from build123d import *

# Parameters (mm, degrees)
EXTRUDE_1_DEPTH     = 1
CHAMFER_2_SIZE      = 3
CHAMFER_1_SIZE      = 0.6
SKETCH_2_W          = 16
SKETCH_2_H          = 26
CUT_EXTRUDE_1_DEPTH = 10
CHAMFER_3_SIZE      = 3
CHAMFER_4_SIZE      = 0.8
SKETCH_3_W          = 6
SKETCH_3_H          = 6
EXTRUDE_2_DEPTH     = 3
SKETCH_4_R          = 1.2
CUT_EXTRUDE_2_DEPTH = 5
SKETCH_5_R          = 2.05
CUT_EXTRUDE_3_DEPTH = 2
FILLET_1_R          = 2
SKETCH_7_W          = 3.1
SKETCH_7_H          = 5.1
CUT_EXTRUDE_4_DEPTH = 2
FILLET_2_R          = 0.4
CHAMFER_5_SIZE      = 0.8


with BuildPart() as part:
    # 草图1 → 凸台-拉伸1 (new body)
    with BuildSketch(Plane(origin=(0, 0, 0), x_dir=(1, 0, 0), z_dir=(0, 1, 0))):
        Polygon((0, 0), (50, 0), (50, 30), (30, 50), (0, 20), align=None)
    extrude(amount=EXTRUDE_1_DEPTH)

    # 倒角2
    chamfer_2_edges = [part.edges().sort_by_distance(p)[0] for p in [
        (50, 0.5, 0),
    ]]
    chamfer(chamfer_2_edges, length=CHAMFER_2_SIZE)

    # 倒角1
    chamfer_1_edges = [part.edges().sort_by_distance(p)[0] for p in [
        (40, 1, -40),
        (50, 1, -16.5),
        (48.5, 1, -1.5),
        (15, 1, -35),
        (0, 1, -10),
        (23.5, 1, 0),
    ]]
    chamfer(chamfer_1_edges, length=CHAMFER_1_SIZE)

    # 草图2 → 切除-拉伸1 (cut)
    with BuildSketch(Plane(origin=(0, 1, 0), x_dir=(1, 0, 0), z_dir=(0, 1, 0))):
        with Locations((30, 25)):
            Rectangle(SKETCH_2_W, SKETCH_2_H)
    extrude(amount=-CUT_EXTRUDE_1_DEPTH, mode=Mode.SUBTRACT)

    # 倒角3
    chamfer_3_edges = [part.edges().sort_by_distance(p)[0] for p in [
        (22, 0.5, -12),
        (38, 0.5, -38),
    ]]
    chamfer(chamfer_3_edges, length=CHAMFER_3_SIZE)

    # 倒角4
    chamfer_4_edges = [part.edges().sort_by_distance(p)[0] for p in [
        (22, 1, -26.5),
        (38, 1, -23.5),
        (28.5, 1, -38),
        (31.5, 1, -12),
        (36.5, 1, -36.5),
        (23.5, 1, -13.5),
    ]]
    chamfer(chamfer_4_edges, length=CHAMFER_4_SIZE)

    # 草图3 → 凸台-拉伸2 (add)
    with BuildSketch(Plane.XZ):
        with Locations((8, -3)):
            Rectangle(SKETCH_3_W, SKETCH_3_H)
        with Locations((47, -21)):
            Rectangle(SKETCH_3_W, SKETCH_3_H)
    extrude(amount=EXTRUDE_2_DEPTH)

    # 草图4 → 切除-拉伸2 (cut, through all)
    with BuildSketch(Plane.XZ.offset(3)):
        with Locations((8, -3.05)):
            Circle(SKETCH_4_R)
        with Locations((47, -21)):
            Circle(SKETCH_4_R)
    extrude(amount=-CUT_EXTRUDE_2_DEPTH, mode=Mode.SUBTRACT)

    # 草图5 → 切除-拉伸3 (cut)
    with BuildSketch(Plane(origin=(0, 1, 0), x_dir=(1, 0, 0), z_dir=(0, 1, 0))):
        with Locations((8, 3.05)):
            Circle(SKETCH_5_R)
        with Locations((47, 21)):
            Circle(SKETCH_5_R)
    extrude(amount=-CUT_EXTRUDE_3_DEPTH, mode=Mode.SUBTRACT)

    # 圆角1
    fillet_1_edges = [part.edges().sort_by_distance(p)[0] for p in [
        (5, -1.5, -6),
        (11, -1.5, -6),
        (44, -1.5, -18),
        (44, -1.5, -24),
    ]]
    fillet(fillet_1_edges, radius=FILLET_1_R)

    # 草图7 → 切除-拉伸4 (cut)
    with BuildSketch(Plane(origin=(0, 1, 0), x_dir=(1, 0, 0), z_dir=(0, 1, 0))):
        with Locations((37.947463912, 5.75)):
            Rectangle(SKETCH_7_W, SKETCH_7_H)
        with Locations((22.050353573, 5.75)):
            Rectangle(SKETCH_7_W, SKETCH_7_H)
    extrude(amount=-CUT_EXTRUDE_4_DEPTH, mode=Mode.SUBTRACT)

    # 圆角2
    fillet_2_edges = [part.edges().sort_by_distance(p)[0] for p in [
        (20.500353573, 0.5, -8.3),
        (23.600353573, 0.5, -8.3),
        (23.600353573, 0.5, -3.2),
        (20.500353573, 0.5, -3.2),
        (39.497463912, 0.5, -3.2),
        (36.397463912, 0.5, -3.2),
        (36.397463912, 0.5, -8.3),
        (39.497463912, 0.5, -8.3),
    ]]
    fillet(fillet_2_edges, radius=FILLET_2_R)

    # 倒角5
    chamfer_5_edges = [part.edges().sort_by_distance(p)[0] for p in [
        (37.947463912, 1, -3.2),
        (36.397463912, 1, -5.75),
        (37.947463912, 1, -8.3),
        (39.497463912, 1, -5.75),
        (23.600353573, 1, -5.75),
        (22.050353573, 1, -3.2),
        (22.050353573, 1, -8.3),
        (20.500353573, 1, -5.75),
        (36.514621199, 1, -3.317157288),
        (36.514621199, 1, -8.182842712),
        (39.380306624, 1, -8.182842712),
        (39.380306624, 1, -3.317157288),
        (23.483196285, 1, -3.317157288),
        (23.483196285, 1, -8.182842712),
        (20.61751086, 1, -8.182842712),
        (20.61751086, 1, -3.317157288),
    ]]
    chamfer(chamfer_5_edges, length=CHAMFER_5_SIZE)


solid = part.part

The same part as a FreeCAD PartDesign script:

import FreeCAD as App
import Part
import Sketcher

V = App.Vector
Q = App.Units.Quantity


def edges_at(feature, points):
    """Names of the edges that pass closest to the given points."""
    edges = feature.Shape.Edges
    near = lambda p: min(range(len(edges)), key=lambda i: edges[i].distToShape(Part.Vertex(*p))[0])
    return sorted({f"Edge{near(p) + 1}" for p in points})

doc = App.newDocument("Part")
params = doc.addObject("Spreadsheet::Sheet", "Params")
for row, (alias, value) in enumerate([
    ("sketch1_width", "50 mm"),
    ("sketch1_height", "30 mm"),
    ("sketch1_height2", "20 mm"),
    ("pad1_length", "1 mm"),
    ("chamfer_size", "3 mm"),
    ("chamfer2_size", "0.6 mm"),
    ("sketch2_width", "16 mm"),
    ("sketch2_height", "26 mm"),
    ("pocket1_length", "10 mm"),
    ("chamfer3_size", "3 mm"),
    ("chamfer4_size", "0.8 mm"),
    ("sketch3_width", "6 mm"),
    ("pad2_length", "3 mm"),
    ("sketch4_diameter", "2.4 mm"),
    ("sketch5_diameter", "4.1 mm"),
    ("pocket3_length", "2 mm"),
    ("fillet_radius", "2 mm"),
    ("sketch6_width", "3.1 mm"),
    ("sketch6_height", "5.1 mm"),
    ("pocket4_length", "2 mm"),
    ("fillet2_radius", "0.4 mm"),
    ("chamfer5_size", "0.8 mm"),
], start=1):
    params.set(f"A{row}", alias)
    params.set(f"B{row}", "=" + value)
    params.setAlias(f"B{row}", alias)

body = doc.addObject("PartDesign::Body", "Body")

# Sketch on XZ plane
sketch1 = doc.addObject("Sketcher::SketchObject", "Sketch")
body.addObject(sketch1)
sketch1.AttachmentSupport = (doc.XZ_Plane, [""])
sketch1.MapMode = "FlatFace"
sketch1.addGeometry([
    Part.LineSegment(V(0, 0, 0), V(50, 0, 0)),  # 0
    Part.LineSegment(V(50, 0, 0), V(50, -30, 0)),  # 1
    Part.LineSegment(V(50, -30, 0), V(30, -50, 0)),  # 2
    Part.LineSegment(V(30, -50, 0), V(0, -20, 0)),  # 3
    Part.LineSegment(V(0, -20, 0), V(0, 0, 0)),  # 4
], False)
sketch1.addConstraint([
    Sketcher.Constraint("Coincident", 0, 2, 1, 1),
    Sketcher.Constraint("Coincident", 1, 2, 2, 1),
    Sketcher.Constraint("Coincident", 2, 2, 3, 1),
    Sketcher.Constraint("Coincident", 3, 2, 4, 1),
    Sketcher.Constraint("Coincident", 4, 2, 0, 1),
    Sketcher.Constraint("Horizontal", 0),
    Sketcher.Constraint("Vertical", 1),
    Sketcher.Constraint("Vertical", 4),
    Sketcher.Constraint("Coincident", 4, 2, -1, 1),
    Sketcher.Constraint("Perpendicular", 2, 3),
    Sketcher.Constraint("DistanceX", 0, 1, 0, 2, Q("50 mm")),
    Sketcher.Constraint("DistanceY", 1, 2, 1, 1, Q("30 mm")),
    Sketcher.Constraint("DistanceY", 4, 1, 4, 2, Q("20 mm")),
    Sketcher.Constraint("Angle", 2, Q("-135 deg")),
])
sketch1.setExpression("Constraints[10]", "Params.sketch1_width")
sketch1.setExpression("Constraints[11]", "Params.sketch1_height")
sketch1.setExpression("Constraints[12]", "Params.sketch1_height2")
pad1 = doc.addObject("PartDesign::Pad", "Pad")
body.addObject(pad1)
pad1.Profile = sketch1
pad1.setExpression("Length", "Params.pad1_length")
pad1.Reversed = True
doc.recompute()

chamfer = doc.addObject("PartDesign::Chamfer", "Chamfer")
body.addObject(chamfer)
chamfer.Base = (pad1, edges_at(pad1, [(50, 0.5, 0)]))
chamfer.setExpression("Size", "Params.chamfer_size")
doc.recompute()

chamfer2 = doc.addObject("PartDesign::Chamfer", "Chamfer001")
body.addObject(chamfer2)
chamfer2.Base = (chamfer, edges_at(chamfer, [
    (40, 1, -40),
    (50, 1, -16.5),
    (48.5, 1, -1.5),
    (15, 1, -35),
    (0, 1, -10),
    (23.5, 1, 0),
]))
chamfer2.setExpression("Size", "Params.chamfer2_size")

# Sketch on XZ plane
sketch2 = doc.addObject("Sketcher::SketchObject", "Sketch001")
body.addObject(sketch2)
sketch2.AttachmentSupport = (doc.XZ_Plane, [""])
sketch2.MapMode = "FlatFace"
sketch2.AttachmentOffset = App.Placement(V(0, 0, -1), App.Rotation())
sketch2.addGeometry([
    Part.LineSegment(V(22, -38, 0), V(22, -12, 0)),
    Part.LineSegment(V(22, -12, 0), V(38, -12, 0)),
    Part.LineSegment(V(38, -12, 0), V(38, -38, 0)),
    Part.LineSegment(V(38, -38, 0), V(22, -38, 0)),
], False)
sketch2.addConstraint([
    Sketcher.Constraint("Coincident", 0, 2, 1, 1),
    Sketcher.Constraint("Coincident", 1, 2, 2, 1),
    Sketcher.Constraint("Coincident", 2, 2, 3, 1),
    Sketcher.Constraint("Coincident", 3, 2, 0, 1),
    Sketcher.Constraint("Vertical", 0),
    Sketcher.Constraint("Horizontal", 1),
    Sketcher.Constraint("Vertical", 2),
    Sketcher.Constraint("Horizontal", 3),
    Sketcher.Constraint("DistanceX", 1, 1, 1, 2, Q("16 mm")),
    Sketcher.Constraint("DistanceY", 0, 1, 0, 2, Q("26 mm")),
    Sketcher.Constraint("DistanceX", -1, 1, 0, 2, Q("22 mm")),
    Sketcher.Constraint("DistanceY", 0, 2, -1, 1, Q("12 mm")),
])
sketch2.setExpression("Constraints[8]", "Params.sketch2_width")
sketch2.setExpression("Constraints[9]", "Params.sketch2_height")
pocket1 = doc.addObject("PartDesign::Pocket", "Pocket")
body.addObject(pocket1)
pocket1.Profile = sketch2
pocket1.setExpression("Length", "Params.pocket1_length")
pocket1.Reversed = True
doc.recompute()

chamfer3 = doc.addObject("PartDesign::Chamfer", "Chamfer002")
body.addObject(chamfer3)
chamfer3.Base = (pocket1, edges_at(pocket1, [(22, 0.5, -12), (38, 0.5, -38)]))
chamfer3.setExpression("Size", "Params.chamfer3_size")
doc.recompute()

chamfer4 = doc.addObject("PartDesign::Chamfer", "Chamfer003")
body.addObject(chamfer4)
chamfer4.Base = (chamfer3, edges_at(chamfer3, [
    (22, 1, -26.5),
    (38, 1, -23.5),
    (28.5, 1, -38),
    (31.5, 1, -12),
    (36.5, 1, -36.5),
    (23.5, 1, -13.5),
]))
chamfer4.setExpression("Size", "Params.chamfer4_size")

# Sketch on XZ plane
sketch3 = doc.addObject("Sketcher::SketchObject", "Sketch002")
body.addObject(sketch3)
sketch3.AttachmentSupport = (doc.XZ_Plane, [""])
sketch3.MapMode = "FlatFace"
sketch3.addGeometry([
    Part.LineSegment(V(5, 0, 0), V(5, -6, 0)),  # 0
    Part.LineSegment(V(5, -6, 0), V(11, -6, 0)),  # 1
    Part.LineSegment(V(11, -6, 0), V(11, 0, 0)),  # 2
    Part.LineSegment(V(11, 0, 0), V(5, 0, 0)),  # 3
    Part.LineSegment(V(44, -18, 0), V(44, -24, 0)),  # 4
    Part.LineSegment(V(44, -24, 0), V(50, -24, 0)),  # 5
    Part.LineSegment(V(50, -24, 0), V(50, -18, 0)),  # 6
    Part.LineSegment(V(50, -18, 0), V(44, -18, 0)),  # 7
], False)
sketch3.addConstraint([
    Sketcher.Constraint("Coincident", 0, 2, 1, 1),
    Sketcher.Constraint("Coincident", 1, 2, 2, 1),
    Sketcher.Constraint("Coincident", 2, 2, 3, 1),
    Sketcher.Constraint("Coincident", 3, 2, 0, 1),
    Sketcher.Constraint("Coincident", 4, 2, 5, 1),
    Sketcher.Constraint("Coincident", 5, 2, 6, 1),
    Sketcher.Constraint("Coincident", 6, 2, 7, 1),
    Sketcher.Constraint("Coincident", 7, 2, 4, 1),
    Sketcher.Constraint("Vertical", 0),
    Sketcher.Constraint("Horizontal", 1),
    Sketcher.Constraint("Vertical", 2),
    Sketcher.Constraint("Horizontal", 3),
    Sketcher.Constraint("Vertical", 4),
    Sketcher.Constraint("Horizontal", 5),
    Sketcher.Constraint("Vertical", 6),
    Sketcher.Constraint("Horizontal", 7),
    Sketcher.Constraint("PointOnObject", 2, 2, -1),
    Sketcher.Constraint("Equal", 3, 5),
    Sketcher.Constraint("Equal", 7, 0),
    Sketcher.Constraint("Equal", 2, 4),
    Sketcher.Constraint("DistanceX", 1, 1, 1, 2, Q("6 mm")),
    Sketcher.Constraint("DistanceX", -1, 1, 0, 2, Q("5 mm")),
    Sketcher.Constraint("DistanceX", -1, 1, 4, 2, Q("44 mm")),
    Sketcher.Constraint("DistanceY", 4, 2, -1, 1, Q("24 mm")),
])
sketch3.setExpression("Constraints[20]", "Params.sketch3_width")
pad2 = doc.addObject("PartDesign::Pad", "Pad001")
body.addObject(pad2)
pad2.Profile = sketch3
pad2.setExpression("Length", "Params.pad2_length")

# Sketch on XZ plane
sketch4 = doc.addObject("Sketcher::SketchObject", "Sketch003")
body.addObject(sketch4)
sketch4.AttachmentSupport = (doc.XZ_Plane, [""])
sketch4.MapMode = "FlatFace"
sketch4.AttachmentOffset = App.Placement(V(0, 0, 3), App.Rotation())
sketch4.addGeometry([
    Part.Circle(V(8, -3.05, 0), V(0, 0, 1), 1.2),
    Part.Circle(V(47, -21, 0), V(0, 0, 1), 1.2),
], False)
sketch4.addConstraint([
    Sketcher.Constraint("Equal", 0, 1),
    Sketcher.Constraint("Diameter", 0, Q("2.4 mm")),
    Sketcher.Constraint("DistanceX", -1, 1, 0, 3, Q("8 mm")),
    Sketcher.Constraint("DistanceX", -1, 1, 1, 3, Q("47 mm")),
    Sketcher.Constraint("DistanceY", 1, 3, -1, 1, Q("21 mm")),
    Sketcher.Constraint("DistanceY", 0, 3, -1, 1, Q("3.05 mm")),
])
sketch4.setExpression("Constraints[1]", "Params.sketch4_diameter")
pocket2 = doc.addObject("PartDesign::Pocket", "Pocket001")
body.addObject(pocket2)
pocket2.Profile = sketch4
pocket2.Type = "ThroughAll"

# Sketch on XZ plane
sketch5 = doc.addObject("Sketcher::SketchObject", "Sketch004")
body.addObject(sketch5)
sketch5.AttachmentSupport = (doc.XZ_Plane, [""])
sketch5.MapMode = "FlatFace"
sketch5.AttachmentOffset = App.Placement(V(0, 0, -1), App.Rotation())
sketch5.addGeometry([
    Part.Circle(V(8, -3.05, 0), V(0, 0, 1), 2.05),
    Part.Circle(V(47, -21, 0), V(0, 0, 1), 2.05),
], False)
sketch5.addConstraint([
    Sketcher.Constraint("Equal", 0, 1),
    Sketcher.Constraint("Diameter", 0, Q("4.1 mm")),
    Sketcher.Constraint("DistanceX", -1, 1, 0, 3, Q("8 mm")),
    Sketcher.Constraint("DistanceX", -1, 1, 1, 3, Q("47 mm")),
    Sketcher.Constraint("DistanceY", 1, 3, -1, 1, Q("21 mm")),
    Sketcher.Constraint("DistanceY", 0, 3, -1, 1, Q("3.05 mm")),
])
sketch5.setExpression("Constraints[1]", "Params.sketch5_diameter")
pocket3 = doc.addObject("PartDesign::Pocket", "Pocket002")
body.addObject(pocket3)
pocket3.Profile = sketch5
pocket3.setExpression("Length", "Params.pocket3_length")
pocket3.Reversed = True
doc.recompute()

fillet = doc.addObject("PartDesign::Fillet", "Fillet")
body.addObject(fillet)
fillet.Base = (pocket3, edges_at(pocket3, [
    (5, -1.5, -6),
    (11, -1.5, -6),
    (44, -1.5, -18),
    (44, -1.5, -24),
]))
fillet.setExpression("Radius", "Params.fillet_radius")

# Sketch on XZ plane
sketch6 = doc.addObject("Sketcher::SketchObject", "Sketch005")
body.addObject(sketch6)
sketch6.AttachmentSupport = (doc.XZ_Plane, [""])
sketch6.MapMode = "FlatFace"
sketch6.AttachmentOffset = App.Placement(V(0, 0, -1), App.Rotation())
sketch6.addGeometry([
    Part.LineSegment(V(36.397464, -8.3, 0), V(36.397464, -3.2, 0)),  # 0
    Part.LineSegment(V(36.397464, -3.2, 0), V(39.497464, -3.2, 0)),  # 1
    Part.LineSegment(V(39.497464, -3.2, 0), V(39.497464, -8.3, 0)),  # 2
    Part.LineSegment(V(39.497464, -8.3, 0), V(36.397464, -8.3, 0)),  # 3
    Part.LineSegment(V(20.500354, -8.3, 0), V(20.500354, -3.2, 0)),  # 4
    Part.LineSegment(V(20.500354, -3.2, 0), V(23.600354, -3.2, 0)),  # 5
    Part.LineSegment(V(23.600354, -3.2, 0), V(23.600354, -8.3, 0)),  # 6
    Part.LineSegment(V(23.600354, -8.3, 0), V(20.500354, -8.3, 0)),  # 7
], False)
sketch6.addConstraint([
    Sketcher.Constraint("Coincident", 0, 2, 1, 1),
    Sketcher.Constraint("Coincident", 1, 2, 2, 1),
    Sketcher.Constraint("Coincident", 2, 2, 3, 1),
    Sketcher.Constraint("Coincident", 3, 2, 0, 1),
    Sketcher.Constraint("Coincident", 4, 2, 5, 1),
    Sketcher.Constraint("Coincident", 5, 2, 6, 1),
    Sketcher.Constraint("Coincident", 6, 2, 7, 1),
    Sketcher.Constraint("Coincident", 7, 2, 4, 1),
    Sketcher.Constraint("Vertical", 0),
    Sketcher.Constraint("Horizontal", 1),
    Sketcher.Constraint("Vertical", 2),
    Sketcher.Constraint("Horizontal", 3),
    Sketcher.Constraint("Vertical", 4),
    Sketcher.Constraint("Horizontal", 5),
    Sketcher.Constraint("Vertical", 6),
    Sketcher.Constraint("Horizontal", 7),
    Sketcher.Constraint("Horizontal", 1, 2, 4, 2),
    Sketcher.Constraint("Horizontal", 3, 2, 6, 2),
    Sketcher.Constraint("Equal", 3, 5),
    Sketcher.Constraint("DistanceX", 1, 1, 1, 2, Q("3.1 mm")),
    Sketcher.Constraint("DistanceY", 0, 1, 0, 2, Q("5.1 mm")),
    Sketcher.Constraint("DistanceY", 0, 2, -1, 1, Q("3.2 mm")),
    Sketcher.Constraint("DistanceX", 4, 2, 0, 2, Q("15.89711 mm")),
    Sketcher.Constraint("DistanceX", -1, 1, 0, 2, Q("36.397464 mm")),
])
sketch6.setExpression("Constraints[19]", "Params.sketch6_width")
sketch6.setExpression("Constraints[20]", "Params.sketch6_height")
pocket4 = doc.addObject("PartDesign::Pocket", "Pocket003")
body.addObject(pocket4)
pocket4.Profile = sketch6
pocket4.setExpression("Length", "Params.pocket4_length")
pocket4.Reversed = True
doc.recompute()

fillet2 = doc.addObject("PartDesign::Fillet", "Fillet001")
body.addObject(fillet2)
fillet2.Base = (pocket4, edges_at(pocket4, [
    (20.5, 0.5, -8.3),
    (23.6, 0.5, -8.3),
    (23.6, 0.5, -3.2),
    (20.5, 0.5, -3.2),
    (39.497, 0.5, -3.2),
    (36.397, 0.5, -3.2),
    (36.397, 0.5, -8.3),
    (39.497, 0.5, -8.3),
]))
fillet2.setExpression("Radius", "Params.fillet2_radius")
doc.recompute()

chamfer5 = doc.addObject("PartDesign::Chamfer", "Chamfer004")
body.addObject(chamfer5)
chamfer5.Base = (fillet2, edges_at(fillet2, [
    (37.947, 1, -3.2),
    (36.397, 1, -5.75),
    (37.947, 1, -8.3),
    (39.497, 1, -5.75),
    (23.6, 1, -5.75),
    (22.05, 1, -3.2),
    (22.05, 1, -8.3),
    (20.5, 1, -5.75),
    (36.515, 1, -3.317),
    (36.515, 1, -8.183),
    (39.38, 1, -8.183),
    (39.38, 1, -3.317),
    (23.483, 1, -3.317),
    (23.483, 1, -8.183),
    (20.618, 1, -8.183),
    (20.618, 1, -3.317),
]))
chamfer5.setExpression("Size", "Params.chamfer5_size")

doc.recompute()
